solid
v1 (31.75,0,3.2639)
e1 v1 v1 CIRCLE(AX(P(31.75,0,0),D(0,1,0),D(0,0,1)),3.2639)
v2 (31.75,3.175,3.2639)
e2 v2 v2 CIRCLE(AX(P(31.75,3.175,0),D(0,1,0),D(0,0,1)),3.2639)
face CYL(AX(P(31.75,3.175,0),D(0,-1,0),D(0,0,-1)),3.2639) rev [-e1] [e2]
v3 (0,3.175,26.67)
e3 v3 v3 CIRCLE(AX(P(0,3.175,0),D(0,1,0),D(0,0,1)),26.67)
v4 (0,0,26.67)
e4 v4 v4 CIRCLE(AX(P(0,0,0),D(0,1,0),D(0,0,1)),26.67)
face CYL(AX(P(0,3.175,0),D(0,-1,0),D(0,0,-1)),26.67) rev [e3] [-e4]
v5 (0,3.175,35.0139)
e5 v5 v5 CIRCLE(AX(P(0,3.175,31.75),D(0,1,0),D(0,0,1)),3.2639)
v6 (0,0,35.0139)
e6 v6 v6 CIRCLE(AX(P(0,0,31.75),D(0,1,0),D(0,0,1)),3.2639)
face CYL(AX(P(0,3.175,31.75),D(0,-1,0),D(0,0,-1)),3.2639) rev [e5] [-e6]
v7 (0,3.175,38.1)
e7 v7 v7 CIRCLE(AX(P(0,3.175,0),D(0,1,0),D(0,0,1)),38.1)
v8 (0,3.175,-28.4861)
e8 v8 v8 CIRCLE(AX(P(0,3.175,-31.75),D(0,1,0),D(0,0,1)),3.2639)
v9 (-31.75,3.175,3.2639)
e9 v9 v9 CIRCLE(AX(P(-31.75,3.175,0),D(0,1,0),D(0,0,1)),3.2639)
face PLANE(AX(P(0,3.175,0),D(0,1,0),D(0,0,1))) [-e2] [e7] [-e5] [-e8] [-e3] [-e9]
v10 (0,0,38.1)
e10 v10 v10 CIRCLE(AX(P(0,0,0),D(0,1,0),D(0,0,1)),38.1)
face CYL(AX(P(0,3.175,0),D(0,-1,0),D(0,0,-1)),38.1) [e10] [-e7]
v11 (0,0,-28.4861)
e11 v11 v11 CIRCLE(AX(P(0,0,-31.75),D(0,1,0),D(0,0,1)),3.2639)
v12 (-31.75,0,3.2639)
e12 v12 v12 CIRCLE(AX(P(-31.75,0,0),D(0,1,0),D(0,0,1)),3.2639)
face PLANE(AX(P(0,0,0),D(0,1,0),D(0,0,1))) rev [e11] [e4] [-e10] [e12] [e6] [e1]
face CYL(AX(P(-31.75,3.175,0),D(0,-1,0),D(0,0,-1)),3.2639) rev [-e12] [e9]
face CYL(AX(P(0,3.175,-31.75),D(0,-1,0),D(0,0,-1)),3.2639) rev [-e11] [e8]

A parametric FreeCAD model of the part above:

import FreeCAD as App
import Part
import Sketcher
Q = App.Units.Quantity

doc = App.newDocument("Part")
body = doc.addObject("PartDesign::Body", "Body")

# Sketch on XZ plane
sketch1 = doc.addObject("Sketcher::SketchObject", "Sketch")
body.addObject(sketch1)
sketch1.AttachmentSupport = (doc.XZ_Plane, [""])
sketch1.MapMode = "FlatFace"
sketch1.addGeometry([
    Part.Circle(App.Vector(0, 0, 0), App.Vector(0, 0, 1), 38.1),  # 0
    Part.Circle(App.Vector(0, -31.8, 0), App.Vector(0, 0, 1), 3.3),  # 1
    Part.Circle(App.Vector(-31.8, 0, 0), App.Vector(0, 0, 1), 3.3),  # 2
    Part.Circle(App.Vector(31.8, 0, 0), App.Vector(0, 0, 1), 3.3),  # 3
    Part.Circle(App.Vector(0, 0, 0), App.Vector(0, 0, 1), 26.7),  # 4
    Part.Circle(App.Vector(0, 31.8, 0), App.Vector(0, 0, 1), 3.3),  # 5
], False)
sketch1.addConstraint([
    Sketcher.Constraint("Coincident", 0, 3, -1, 1),
    Sketcher.Constraint("Coincident", 4, 3, -1, 1),
    Sketcher.Constraint("Equal", 1, 2),
    Sketcher.Constraint("Equal", 2, 3),
    Sketcher.Constraint("Equal", 3, 5),
    Sketcher.Constraint("Symmetric", 2, 3, 3, 3, -1, 1),
    Sketcher.Constraint("Symmetric", 1, 3, 5, 3, -1, 1),
    Sketcher.Constraint("PointOnObject", 1, 3, -2),
    Sketcher.Constraint("PointOnObject", 2, 3, -1),
    Sketcher.Constraint("Diameter", 0, Q("3 in")),
    Sketcher.Constraint("Diameter", 4, Q("2.1 in")),
    Sketcher.Constraint("Diameter", 1, Q("0.257 in")),
    Sketcher.Constraint("DistanceX", 2, 3, 3, 3, Q("2.5 in")),
    Sketcher.Constraint("DistanceY", 1, 3, 5, 3, Q("2.5 in")),
])
pad1 = doc.addObject("PartDesign::Pad", "Pad")
body.addObject(pad1)
pad1.Profile = sketch1
pad1.Length = Q("0.125 in")
pad1.Reversed = True

doc.recompute()
